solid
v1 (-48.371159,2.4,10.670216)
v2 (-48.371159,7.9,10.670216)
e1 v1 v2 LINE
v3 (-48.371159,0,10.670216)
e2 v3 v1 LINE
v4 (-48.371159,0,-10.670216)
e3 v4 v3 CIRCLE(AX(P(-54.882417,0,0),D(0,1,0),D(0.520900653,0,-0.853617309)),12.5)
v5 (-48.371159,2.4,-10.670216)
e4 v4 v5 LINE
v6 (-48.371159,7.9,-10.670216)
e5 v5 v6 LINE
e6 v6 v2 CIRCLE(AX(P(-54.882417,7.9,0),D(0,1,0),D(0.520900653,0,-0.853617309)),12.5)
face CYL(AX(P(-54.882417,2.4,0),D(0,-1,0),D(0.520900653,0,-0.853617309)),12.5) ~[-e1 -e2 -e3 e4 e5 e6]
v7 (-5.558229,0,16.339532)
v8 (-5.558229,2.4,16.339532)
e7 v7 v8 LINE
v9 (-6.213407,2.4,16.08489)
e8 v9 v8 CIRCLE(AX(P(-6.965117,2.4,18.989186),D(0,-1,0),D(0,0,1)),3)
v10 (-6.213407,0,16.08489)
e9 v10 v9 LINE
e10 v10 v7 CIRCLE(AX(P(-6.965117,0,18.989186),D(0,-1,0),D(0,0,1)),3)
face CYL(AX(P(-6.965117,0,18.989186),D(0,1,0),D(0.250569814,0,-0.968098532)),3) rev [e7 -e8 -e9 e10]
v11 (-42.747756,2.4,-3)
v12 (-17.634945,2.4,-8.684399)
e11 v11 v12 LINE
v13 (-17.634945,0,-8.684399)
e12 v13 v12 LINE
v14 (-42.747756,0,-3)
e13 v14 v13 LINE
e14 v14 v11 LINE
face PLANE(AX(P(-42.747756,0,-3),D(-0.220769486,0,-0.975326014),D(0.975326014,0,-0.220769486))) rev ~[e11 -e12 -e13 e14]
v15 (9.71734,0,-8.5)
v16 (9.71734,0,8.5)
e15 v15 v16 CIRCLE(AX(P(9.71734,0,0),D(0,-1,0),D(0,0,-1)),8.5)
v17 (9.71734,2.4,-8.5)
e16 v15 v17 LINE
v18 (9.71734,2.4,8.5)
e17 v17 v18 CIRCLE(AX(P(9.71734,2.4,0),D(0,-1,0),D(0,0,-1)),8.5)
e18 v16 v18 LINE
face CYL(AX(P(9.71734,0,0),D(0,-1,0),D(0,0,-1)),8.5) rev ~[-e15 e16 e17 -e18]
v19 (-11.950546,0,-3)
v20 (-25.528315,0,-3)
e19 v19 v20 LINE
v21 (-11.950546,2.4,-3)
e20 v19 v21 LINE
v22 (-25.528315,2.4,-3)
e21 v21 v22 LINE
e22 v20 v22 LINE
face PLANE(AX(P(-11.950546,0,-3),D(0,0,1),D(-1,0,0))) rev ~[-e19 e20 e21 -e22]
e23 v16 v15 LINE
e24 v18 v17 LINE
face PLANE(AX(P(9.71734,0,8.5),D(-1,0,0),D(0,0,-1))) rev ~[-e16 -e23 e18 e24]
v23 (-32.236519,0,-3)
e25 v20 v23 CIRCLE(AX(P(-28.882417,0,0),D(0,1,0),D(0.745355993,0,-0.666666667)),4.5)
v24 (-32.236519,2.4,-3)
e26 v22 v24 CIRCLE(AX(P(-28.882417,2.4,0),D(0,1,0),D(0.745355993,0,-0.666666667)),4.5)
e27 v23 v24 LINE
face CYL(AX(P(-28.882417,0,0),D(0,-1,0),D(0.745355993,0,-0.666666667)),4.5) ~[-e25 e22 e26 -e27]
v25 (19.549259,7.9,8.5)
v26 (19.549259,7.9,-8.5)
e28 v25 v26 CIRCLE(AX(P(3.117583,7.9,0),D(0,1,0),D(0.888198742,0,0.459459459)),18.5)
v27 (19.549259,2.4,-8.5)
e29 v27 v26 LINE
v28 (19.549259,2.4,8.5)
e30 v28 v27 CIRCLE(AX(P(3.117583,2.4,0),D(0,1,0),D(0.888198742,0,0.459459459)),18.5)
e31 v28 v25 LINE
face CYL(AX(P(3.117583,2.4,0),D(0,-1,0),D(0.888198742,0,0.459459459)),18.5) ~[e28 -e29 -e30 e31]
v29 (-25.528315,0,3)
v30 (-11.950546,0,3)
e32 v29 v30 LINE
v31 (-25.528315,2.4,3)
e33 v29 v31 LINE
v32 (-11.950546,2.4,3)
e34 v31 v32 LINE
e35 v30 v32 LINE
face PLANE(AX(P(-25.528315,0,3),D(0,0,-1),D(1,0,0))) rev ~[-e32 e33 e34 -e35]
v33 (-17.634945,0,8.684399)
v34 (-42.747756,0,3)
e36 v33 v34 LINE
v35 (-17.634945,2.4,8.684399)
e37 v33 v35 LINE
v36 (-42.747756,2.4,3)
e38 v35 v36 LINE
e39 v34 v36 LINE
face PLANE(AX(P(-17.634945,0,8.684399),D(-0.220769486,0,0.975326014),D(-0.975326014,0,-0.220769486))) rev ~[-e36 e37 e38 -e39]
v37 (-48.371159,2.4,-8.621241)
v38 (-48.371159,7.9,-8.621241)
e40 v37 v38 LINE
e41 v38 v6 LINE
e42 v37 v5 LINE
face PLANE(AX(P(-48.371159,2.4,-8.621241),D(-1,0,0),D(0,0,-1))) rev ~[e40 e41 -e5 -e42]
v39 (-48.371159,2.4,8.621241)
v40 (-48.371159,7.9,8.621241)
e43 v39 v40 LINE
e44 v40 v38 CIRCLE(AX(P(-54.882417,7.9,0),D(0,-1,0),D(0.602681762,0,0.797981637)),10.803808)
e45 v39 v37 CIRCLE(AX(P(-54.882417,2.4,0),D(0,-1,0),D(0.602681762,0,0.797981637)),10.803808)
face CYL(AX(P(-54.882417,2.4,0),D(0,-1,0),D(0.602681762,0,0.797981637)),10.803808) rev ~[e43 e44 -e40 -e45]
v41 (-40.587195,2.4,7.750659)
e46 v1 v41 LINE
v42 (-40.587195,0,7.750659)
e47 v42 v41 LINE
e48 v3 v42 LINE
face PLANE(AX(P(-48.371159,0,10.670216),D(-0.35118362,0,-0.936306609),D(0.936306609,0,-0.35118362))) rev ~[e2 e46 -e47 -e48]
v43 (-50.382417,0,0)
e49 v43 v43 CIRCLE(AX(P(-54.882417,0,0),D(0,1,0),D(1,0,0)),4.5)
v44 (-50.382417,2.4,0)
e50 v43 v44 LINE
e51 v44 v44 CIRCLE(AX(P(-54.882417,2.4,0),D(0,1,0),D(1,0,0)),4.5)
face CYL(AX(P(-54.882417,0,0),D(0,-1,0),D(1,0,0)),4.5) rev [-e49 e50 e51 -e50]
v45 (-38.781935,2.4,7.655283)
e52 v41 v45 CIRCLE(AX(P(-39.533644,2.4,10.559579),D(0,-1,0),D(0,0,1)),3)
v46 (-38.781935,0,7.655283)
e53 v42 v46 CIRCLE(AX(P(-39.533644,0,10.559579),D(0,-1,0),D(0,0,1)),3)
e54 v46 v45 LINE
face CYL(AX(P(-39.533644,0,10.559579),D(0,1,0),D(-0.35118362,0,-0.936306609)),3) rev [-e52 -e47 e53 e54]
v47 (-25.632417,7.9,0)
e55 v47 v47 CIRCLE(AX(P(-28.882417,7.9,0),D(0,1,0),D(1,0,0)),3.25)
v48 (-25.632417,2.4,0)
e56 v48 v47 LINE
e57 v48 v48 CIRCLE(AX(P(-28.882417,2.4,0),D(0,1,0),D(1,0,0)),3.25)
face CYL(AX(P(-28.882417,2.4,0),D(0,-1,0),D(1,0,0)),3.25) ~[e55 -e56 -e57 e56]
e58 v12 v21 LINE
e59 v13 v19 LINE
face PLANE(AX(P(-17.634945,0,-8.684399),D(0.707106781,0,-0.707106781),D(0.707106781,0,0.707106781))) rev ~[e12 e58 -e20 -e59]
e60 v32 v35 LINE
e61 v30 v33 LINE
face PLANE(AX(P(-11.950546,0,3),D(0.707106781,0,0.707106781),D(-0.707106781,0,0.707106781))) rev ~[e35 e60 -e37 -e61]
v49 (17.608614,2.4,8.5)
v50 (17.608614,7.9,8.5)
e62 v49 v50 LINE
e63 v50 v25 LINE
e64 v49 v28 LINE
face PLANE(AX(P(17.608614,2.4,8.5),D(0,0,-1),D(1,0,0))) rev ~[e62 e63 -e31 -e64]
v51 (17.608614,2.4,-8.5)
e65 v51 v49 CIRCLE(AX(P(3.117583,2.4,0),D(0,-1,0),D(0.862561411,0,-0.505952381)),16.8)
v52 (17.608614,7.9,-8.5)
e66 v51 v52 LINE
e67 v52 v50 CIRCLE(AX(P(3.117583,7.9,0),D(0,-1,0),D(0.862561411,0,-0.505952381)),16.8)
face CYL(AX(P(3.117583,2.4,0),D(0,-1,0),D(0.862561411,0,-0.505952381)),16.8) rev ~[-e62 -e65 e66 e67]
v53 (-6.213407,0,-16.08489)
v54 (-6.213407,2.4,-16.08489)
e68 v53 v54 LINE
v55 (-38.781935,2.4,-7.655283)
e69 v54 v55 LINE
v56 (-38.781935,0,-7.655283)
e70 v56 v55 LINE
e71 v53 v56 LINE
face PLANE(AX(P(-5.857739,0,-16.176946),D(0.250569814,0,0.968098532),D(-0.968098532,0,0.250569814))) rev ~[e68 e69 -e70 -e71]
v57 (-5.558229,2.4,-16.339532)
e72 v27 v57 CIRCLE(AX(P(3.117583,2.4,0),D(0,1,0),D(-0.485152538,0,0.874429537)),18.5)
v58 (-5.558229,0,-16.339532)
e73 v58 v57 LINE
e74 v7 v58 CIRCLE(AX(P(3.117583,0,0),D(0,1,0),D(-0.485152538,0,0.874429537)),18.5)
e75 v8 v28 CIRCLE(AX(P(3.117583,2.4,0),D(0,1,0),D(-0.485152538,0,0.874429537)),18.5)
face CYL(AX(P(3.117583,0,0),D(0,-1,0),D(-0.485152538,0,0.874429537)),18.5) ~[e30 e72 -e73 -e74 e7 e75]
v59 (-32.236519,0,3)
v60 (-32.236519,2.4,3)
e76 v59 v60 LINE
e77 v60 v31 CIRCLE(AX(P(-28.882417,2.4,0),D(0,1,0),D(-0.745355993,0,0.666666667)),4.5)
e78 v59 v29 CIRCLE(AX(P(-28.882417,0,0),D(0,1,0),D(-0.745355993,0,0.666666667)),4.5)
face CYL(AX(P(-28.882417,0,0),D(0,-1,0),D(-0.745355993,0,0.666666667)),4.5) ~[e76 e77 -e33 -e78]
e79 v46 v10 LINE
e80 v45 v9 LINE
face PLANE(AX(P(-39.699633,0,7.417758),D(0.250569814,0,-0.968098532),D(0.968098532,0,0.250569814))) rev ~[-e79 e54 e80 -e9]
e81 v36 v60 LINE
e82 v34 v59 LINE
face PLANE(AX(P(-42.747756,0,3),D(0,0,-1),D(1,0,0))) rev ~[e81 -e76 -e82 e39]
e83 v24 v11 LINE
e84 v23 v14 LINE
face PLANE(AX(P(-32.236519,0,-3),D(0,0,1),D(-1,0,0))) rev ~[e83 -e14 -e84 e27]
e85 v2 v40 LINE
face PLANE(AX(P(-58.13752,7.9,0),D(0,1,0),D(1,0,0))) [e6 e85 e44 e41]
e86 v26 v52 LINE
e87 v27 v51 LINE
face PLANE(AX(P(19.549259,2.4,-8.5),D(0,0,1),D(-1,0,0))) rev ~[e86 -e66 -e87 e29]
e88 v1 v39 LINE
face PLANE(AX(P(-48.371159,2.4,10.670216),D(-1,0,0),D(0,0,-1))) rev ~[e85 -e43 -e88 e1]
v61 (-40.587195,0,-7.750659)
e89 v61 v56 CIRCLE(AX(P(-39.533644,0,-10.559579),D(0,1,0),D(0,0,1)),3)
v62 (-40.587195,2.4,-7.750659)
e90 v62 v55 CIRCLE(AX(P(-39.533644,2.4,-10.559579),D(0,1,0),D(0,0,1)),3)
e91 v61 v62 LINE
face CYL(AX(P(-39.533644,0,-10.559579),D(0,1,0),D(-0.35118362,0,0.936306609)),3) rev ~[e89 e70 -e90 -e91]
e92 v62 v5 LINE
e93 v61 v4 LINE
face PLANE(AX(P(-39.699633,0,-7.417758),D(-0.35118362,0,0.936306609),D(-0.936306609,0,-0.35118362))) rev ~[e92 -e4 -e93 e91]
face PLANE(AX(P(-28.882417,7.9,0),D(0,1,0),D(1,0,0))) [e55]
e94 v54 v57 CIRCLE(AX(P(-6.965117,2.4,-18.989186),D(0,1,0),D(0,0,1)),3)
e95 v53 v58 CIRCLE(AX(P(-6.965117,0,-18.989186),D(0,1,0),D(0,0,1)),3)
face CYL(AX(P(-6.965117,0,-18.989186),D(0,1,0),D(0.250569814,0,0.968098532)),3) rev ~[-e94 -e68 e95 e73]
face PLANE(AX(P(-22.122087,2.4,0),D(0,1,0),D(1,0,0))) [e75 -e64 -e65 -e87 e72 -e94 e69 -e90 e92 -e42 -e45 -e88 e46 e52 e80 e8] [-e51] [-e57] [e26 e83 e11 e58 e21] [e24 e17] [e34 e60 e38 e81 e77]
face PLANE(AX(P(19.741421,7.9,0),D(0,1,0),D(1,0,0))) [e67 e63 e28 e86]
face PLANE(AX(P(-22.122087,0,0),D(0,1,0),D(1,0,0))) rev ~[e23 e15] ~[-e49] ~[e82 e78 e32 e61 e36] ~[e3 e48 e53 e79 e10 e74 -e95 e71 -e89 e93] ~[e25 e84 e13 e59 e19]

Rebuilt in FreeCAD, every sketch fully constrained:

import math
import FreeCAD as App
import Part
import Sketcher
from FreeCAD import Vector


def edges_at(feature, points):
    """Names of the edges that pass closest to the given points."""
    edges = feature.Shape.Edges
    near = lambda p: min(range(len(edges)), key=lambda i: edges[i].distToShape(Part.Vertex(*p))[0])
    return sorted({f"Edge{near(p) + 1}" for p in points})

doc = App.newDocument("Part")
body = doc.addObject("PartDesign::Body", "Body")

# Sketch on XZ plane
sketch1 = body.newObject("Sketcher::SketchObject", "Sketch")
sketch1.AttachmentSupport = (doc.getObject("XZ_Plane"), [""])
sketch1.MapMode = "FlatFace"
sketch1.addGeometry([
    Part.ArcOfCircle(Part.Circle(Vector(-54.882417, 0, 0), Vector(0, 0, 1), 12.5), math.radians(58.607315), math.radians(301.392685)),  # 0
    Part.LineSegment(Vector(-48.371159, 10.670216, 0), Vector(-39.699633, 7.417758, 0)),  # 1
    Part.LineSegment(Vector(-39.699633, 7.417758, 0), Vector(-5.857739, 16.176946, 0)),  # 2
    Part.ArcOfCircle(Part.Circle(Vector(3.117583, 0, 0), Vector(0, 0, 1), 18.5), math.radians(-119.022467), math.radians(119.022467)),  # 3
    Part.LineSegment(Vector(-5.857739, -16.176946, 0), Vector(-39.699633, -7.417758, 0)),  # 4
    Part.LineSegment(Vector(-39.699633, -7.417758, 0), Vector(-48.371159, -10.670216, 0)),  # 5
    Part.LineSegment(Vector(-17.634945, 8.684399, 0), Vector(-42.747756, 3, 0)),  # 6
    Part.LineSegment(Vector(-42.747756, 3, 0), Vector(-32.236519, 3, 0)),  # 7
    Part.ArcOfCircle(Part.Circle(Vector(-28.882417, 0, 0), Vector(0, 0, 1), 4.5), math.radians(41.810315), math.radians(138.189685)),  # 8
    Part.LineSegment(Vector(-25.528315, 3, 0), Vector(-11.950546, 3, 0)),  # 9
    Part.LineSegment(Vector(-11.950546, 3, 0), Vector(-17.634945, 8.684399, 0)),  # 10
    Part.Circle(Vector(-54.882417, 0, 0), Vector(0, 0, 1), 4.5),  # 11
    Part.LineSegment(Vector(-17.634945, -8.684399, 0), Vector(-11.950546, -3, 0)),  # 12
    Part.LineSegment(Vector(-11.950546, -3, 0), Vector(-25.528315, -3, 0)),  # 13
    Part.ArcOfCircle(Part.Circle(Vector(-28.882417, 0, 0), Vector(0, 0, 1), 4.5), math.radians(-138.189685), math.radians(-41.810315)),  # 14
    Part.LineSegment(Vector(-32.236519, -3, 0), Vector(-42.747756, -3, 0)),  # 15
    Part.LineSegment(Vector(-42.747756, -3, 0), Vector(-17.634945, -8.684399, 0)),  # 16
    Part.ArcOfCircle(Part.Circle(Vector(9.71734, 0, 0), Vector(0, 0, 1), 8.5), math.radians(-90), math.radians(90)),  # 17
    Part.LineSegment(Vector(9.71734, 8.5, 0), Vector(9.71734, -8.5, 0)),  # 18
], False)
sketch1.addConstraint([
    Sketcher.Constraint("Coincident", 0, 1, 1, 1),
    Sketcher.Constraint("Coincident", 1, 2, 2, 1),
    Sketcher.Constraint("Coincident", 2, 2, 3, 2),
    Sketcher.Constraint("Coincident", 3, 1, 4, 1),
    Sketcher.Constraint("Coincident", 4, 2, 5, 1),
    Sketcher.Constraint("Coincident", 5, 2, 0, 2),
    Sketcher.Constraint("Coincident", 6, 2, 7, 1),
    Sketcher.Constraint("Coincident", 7, 2, 8, 2),
    Sketcher.Constraint("Coincident", 8, 1, 9, 1),
    Sketcher.Constraint("Coincident", 9, 2, 10, 1),
    Sketcher.Constraint("Coincident", 10, 2, 6, 1),
    Sketcher.Constraint("Coincident", 12, 2, 13, 1),
    Sketcher.Constraint("Coincident", 13, 2, 14, 2),
    Sketcher.Constraint("Coincident", 14, 1, 15, 1),
    Sketcher.Constraint("Coincident", 15, 2, 16, 1),
    Sketcher.Constraint("Coincident", 16, 2, 12, 1),
    Sketcher.Constraint("Coincident", 17, 1, 18, 2),
    Sketcher.Constraint("Coincident", 18, 1, 17, 2),
    Sketcher.Constraint("Horizontal", 7),
    Sketcher.Constraint("Horizontal", 9),
    Sketcher.Constraint("Horizontal", 13),
    Sketcher.Constraint("Horizontal", 15),
    Sketcher.Constraint("Vertical", 18),
    Sketcher.Constraint("Coincident", 11, 3, 0, 3),
    Sketcher.Constraint("Coincident", 14, 3, 8, 3),
    Sketcher.Constraint("Equal", 8, 11),
    Sketcher.Constraint("Equal", 11, 14),
    Sketcher.Constraint("Symmetric", 2, 2, 3, 1, -1),
    Sketcher.Constraint("Symmetric", 1, 2, 4, 2, -1),
    Sketcher.Constraint("Symmetric", 0, 1, 5, 2, -1),
    Sketcher.Constraint("Symmetric", 9, 2, 12, 2, -1),
    Sketcher.Constraint("Symmetric", 7, 2, 14, 1, -1),
    Sketcher.Constraint("Symmetric", 10, 2, 16, 2, -1),
    Sketcher.Constraint("PointOnObject", 17, 3, -1),
    Sketcher.Constraint("Perpendicular", 10, 12),
    Sketcher.Constraint("Horizontal", 7, 2, 8, 1),
    Sketcher.Constraint("Vertical", 6, 2, 15, 2),
    Sketcher.Constraint("Diameter", 11, 9.0),
    Sketcher.Constraint("Radius", 0, 12.5),
    Sketcher.Constraint("Radius", 3, 18.5),
    Sketcher.Constraint("Radius", 17, 8.5),
    Sketcher.Constraint("DistanceY", -1, 1, 6, 2, 3.0),
    Sketcher.Constraint("DistanceX", 0, 3, 3, 3, 58.0),
    Sketcher.Constraint("DistanceX", 0, 3, 8, 3, 26.0),
    Sketcher.Constraint("DistanceX", 9, 1, 9, 2, 13.577769),
    Sketcher.Constraint("DistanceY", -1, 1, 10, 2, 8.684399),
    Sketcher.Constraint("Distance", 6, 25.74812),
    Sketcher.Constraint("DistanceX", -1, 1, 17, 3, 9.71734),
    Sketcher.Constraint("DistanceX", 0, 1, -1, 1, 48.371159),
    Sketcher.Constraint("DistanceY", -1, 1, 1, 2, 7.417758),
    Sketcher.Constraint("DistanceX", 2, 2, -1, 1, 5.857739),
    Sketcher.Constraint("DistanceX", 7, 2, -1, 1, 32.236519),
    Sketcher.Constraint("DistanceX", -1, 1, 17, 1, 9.71734),
    Sketcher.Constraint("Distance", 1, 9.261417),
])
pad1 = body.newObject("PartDesign::Pad", "Pad")
pad1.Profile = sketch1
pad1.Length = 2.4
pad1.Reversed = True
doc.recompute()

fillet = body.newObject("PartDesign::Fillet", "Fillet")
fillet.Base = (pad1, edges_at(pad1, [
    (-39.7, 1.2, -7.418),
    (-5.858, 1.2, -16.177),
    (-5.858, 1.2, 16.177),
    (-39.7, 1.2, 7.418),
]))
fillet.Radius = 3

# Sketch on XZ plane
sketch2 = body.newObject("Sketcher::SketchObject", "Sketch001")
sketch2.AttachmentSupport = (doc.getObject("XZ_Plane"), [""])
sketch2.MapMode = "FlatFace"
sketch2.AttachmentOffset = App.Placement(Vector(0, 0, -2.4), App.Rotation())
sketch2.addGeometry([
    Part.Circle(Vector(-28.882417, 0, 0), Vector(0, 0, 1), 3.25),  # 0
    Part.LineSegment(Vector(-48.371159, -8.621241, 0), Vector(-48.371159, -10.670216, 0)),  # 1
    Part.ArcOfCircle(Part.Circle(Vector(-54.882417, 0, 0), Vector(0, 0, 1), 12.5), math.radians(58.607315), math.radians(301.392685)),  # 2
    Part.LineSegment(Vector(-48.371159, 10.670216, 0), Vector(-48.371159, 8.621241, 0)),  # 3
    Part.ArcOfCircle(Part.Circle(Vector(-54.882417, 0, 0), Vector(0, 0, 1), 10.803808), math.radians(52.937793), math.radians(307.062207)),  # 4
    Part.LineSegment(Vector(19.549259, -8.5, 0), Vector(17.608614, -8.5, 0)),  # 5
    Part.ArcOfCircle(Part.Circle(Vector(3.117583, 0, 0), Vector(0, 0, 1), 16.8), math.radians(-30.394594), math.radians(30.394594)),  # 6
    Part.LineSegment(Vector(17.608614, 8.5, 0), Vector(19.549259, 8.5, 0)),  # 7
    Part.ArcOfCircle(Part.Circle(Vector(3.117583, 0, 0), Vector(0, 0, 1), 18.5), math.radians(-27.352233), math.radians(27.352233)),  # 8
], False)
sketch2.addConstraint([
    Sketcher.Constraint("Coincident", 1, 2, 2, 2),
    Sketcher.Constraint("Coincident", 2, 1, 3, 1),
    Sketcher.Constraint("Coincident", 3, 2, 4, 1),
    Sketcher.Constraint("Coincident", 4, 2, 1, 1),
    Sketcher.Constraint("Coincident", 5, 2, 6, 1),
    Sketcher.Constraint("Coincident", 6, 2, 7, 1),
    Sketcher.Constraint("Coincident", 7, 2, 8, 2),
    Sketcher.Constraint("Coincident", 8, 1, 5, 1),
    Sketcher.Constraint("Vertical", 1),
    Sketcher.Constraint("Vertical", 3),
    Sketcher.Constraint("Horizontal", 5),
    Sketcher.Constraint("Horizontal", 7),
    Sketcher.Constraint("Coincident", 4, 3, 2, 3),
    Sketcher.Constraint("Coincident", 8, 3, 6, 3),
    Sketcher.Constraint("Symmetric", 1, 2, 2, 1, -1),
    Sketcher.Constraint("Symmetric", 5, 2, 6, 2, -1),
    Sketcher.Constraint("PointOnObject", 0, 3, -1),
    Sketcher.Constraint("Diameter", 0, 6.5),
    Sketcher.Constraint("Radius", 2, 12.5),
    Sketcher.Constraint("Radius", 6, 16.8),
    Sketcher.Constraint("Radius", 8, 18.5),
    Sketcher.Constraint("DistanceX", 2, 3, 0, 3, 26.0),
    Sketcher.Constraint("DistanceX", 0, 3, 6, 3, 32.0),
    Sketcher.Constraint("DistanceY", 5, 2, 6, 2, 17.0),
    Sketcher.Constraint("Radius", 4, 10.803808),
    Sketcher.Constraint("DistanceY", 1, 2, 1, 1, 2.048976),
    Sketcher.Constraint("DistanceX", 1, 2, -1, 1, 48.371159),
])
pad2 = body.newObject("PartDesign::Pad", "Pad001")
pad2.Profile = sketch2
pad2.Length = 5.5
pad2.Reversed = True

doc.recompute()
